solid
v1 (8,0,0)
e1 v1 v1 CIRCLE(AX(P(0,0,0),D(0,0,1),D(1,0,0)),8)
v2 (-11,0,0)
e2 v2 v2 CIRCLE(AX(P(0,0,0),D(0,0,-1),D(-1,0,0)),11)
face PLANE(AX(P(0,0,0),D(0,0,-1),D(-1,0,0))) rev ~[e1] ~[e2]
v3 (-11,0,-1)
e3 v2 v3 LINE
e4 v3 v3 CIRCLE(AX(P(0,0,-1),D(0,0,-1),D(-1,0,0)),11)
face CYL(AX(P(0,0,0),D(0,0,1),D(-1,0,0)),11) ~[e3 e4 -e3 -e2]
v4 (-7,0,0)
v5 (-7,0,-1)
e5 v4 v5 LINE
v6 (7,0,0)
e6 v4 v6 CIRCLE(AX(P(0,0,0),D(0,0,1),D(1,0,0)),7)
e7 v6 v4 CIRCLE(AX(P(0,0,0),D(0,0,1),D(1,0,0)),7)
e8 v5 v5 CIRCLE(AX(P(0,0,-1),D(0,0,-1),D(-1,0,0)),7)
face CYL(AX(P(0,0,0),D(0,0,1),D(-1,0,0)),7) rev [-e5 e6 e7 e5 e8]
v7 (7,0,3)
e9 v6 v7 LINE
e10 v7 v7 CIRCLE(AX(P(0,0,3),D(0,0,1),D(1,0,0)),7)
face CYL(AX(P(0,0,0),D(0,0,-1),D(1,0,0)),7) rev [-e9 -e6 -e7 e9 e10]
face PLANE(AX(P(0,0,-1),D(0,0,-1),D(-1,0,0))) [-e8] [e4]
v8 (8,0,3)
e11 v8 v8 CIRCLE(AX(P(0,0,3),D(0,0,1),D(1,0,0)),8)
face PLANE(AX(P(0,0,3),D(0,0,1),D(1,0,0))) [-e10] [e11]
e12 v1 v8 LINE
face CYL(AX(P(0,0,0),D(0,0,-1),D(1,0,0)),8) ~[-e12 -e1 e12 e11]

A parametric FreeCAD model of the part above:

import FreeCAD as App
import Part
import Sketcher

V = App.Vector

doc = App.newDocument("Part")
params = doc.addObject("Spreadsheet::Sheet", "Params")
for row, (alias, value) in enumerate([
    ("sketch1_diameter", "16 mm"),
    ("sketch1_diameter2", "14 mm"),
    ("pad1_length", "3 mm"),
    ("sketch2_diameter", "22 mm"),
    ("sketch2_diameter2", "14 mm"),
    ("pad2_length", "1 mm"),
], start=1):
    params.set(f"A{row}", alias)
    params.set(f"B{row}", "=" + value)
    params.setAlias(f"B{row}", alias)

body = doc.addObject("PartDesign::Body", "Body")

sketch1 = doc.addObject("Sketcher::SketchObject", "Sketch")
body.addObject(sketch1)
sketch1.AttachmentSupport = (doc.XY_Plane, [""])
sketch1.MapMode = "FlatFace"
sketch1.addGeometry(Part.Circle(V(0, 0, 0), V(0, 0, 1), 8), False)
sketch1.addGeometry(Part.Circle(V(0, 0, 0), V(0, 0, 1), 7), False)
sketch1.addConstraint(Sketcher.Constraint("Coincident", 0, 3, -1, 1))
sketch1.addConstraint(Sketcher.Constraint("Coincident", 1, 3, -1, 1))
sketch1.addConstraint(Sketcher.Constraint("Diameter", 0, 16.0))
sketch1.addConstraint(Sketcher.Constraint("Diameter", 1, 14.0))
sketch1.setExpression("Constraints[2]", "Params.sketch1_diameter")
sketch1.setExpression("Constraints[3]", "Params.sketch1_diameter2")
pad1 = doc.addObject("PartDesign::Pad", "Pad")
body.addObject(pad1)
pad1.Profile = sketch1
pad1.setExpression("Length", "Params.pad1_length")

sketch2 = doc.addObject("Sketcher::SketchObject", "Sketch001")
body.addObject(sketch2)
sketch2.AttachmentSupport = (doc.XY_Plane, [""])
sketch2.MapMode = "FlatFace"
sketch2.addGeometry(Part.Circle(V(0, 0, 0), V(0, 0, 1), 11), False)
sketch2.addGeometry(Part.Circle(V(0, 0, 0), V(0, 0, 1), 7), False)
sketch2.addConstraint(Sketcher.Constraint("Coincident", 0, 3, -1, 1))
sketch2.addConstraint(Sketcher.Constraint("Coincident", 1, 3, -1, 1))
sketch2.addConstraint(Sketcher.Constraint("Diameter", 0, 22.0))
sketch2.addConstraint(Sketcher.Constraint("Diameter", 1, 14.0))
sketch2.setExpression("Constraints[2]", "Params.sketch2_diameter")
sketch2.setExpression("Constraints[3]", "Params.sketch2_diameter2")
pad2 = doc.addObject("PartDesign::Pad", "Pad001")
body.addObject(pad2)
pad2.Profile = sketch2
pad2.setExpression("Length", "Params.pad2_length")
pad2.Reversed = True

doc.recompute()
